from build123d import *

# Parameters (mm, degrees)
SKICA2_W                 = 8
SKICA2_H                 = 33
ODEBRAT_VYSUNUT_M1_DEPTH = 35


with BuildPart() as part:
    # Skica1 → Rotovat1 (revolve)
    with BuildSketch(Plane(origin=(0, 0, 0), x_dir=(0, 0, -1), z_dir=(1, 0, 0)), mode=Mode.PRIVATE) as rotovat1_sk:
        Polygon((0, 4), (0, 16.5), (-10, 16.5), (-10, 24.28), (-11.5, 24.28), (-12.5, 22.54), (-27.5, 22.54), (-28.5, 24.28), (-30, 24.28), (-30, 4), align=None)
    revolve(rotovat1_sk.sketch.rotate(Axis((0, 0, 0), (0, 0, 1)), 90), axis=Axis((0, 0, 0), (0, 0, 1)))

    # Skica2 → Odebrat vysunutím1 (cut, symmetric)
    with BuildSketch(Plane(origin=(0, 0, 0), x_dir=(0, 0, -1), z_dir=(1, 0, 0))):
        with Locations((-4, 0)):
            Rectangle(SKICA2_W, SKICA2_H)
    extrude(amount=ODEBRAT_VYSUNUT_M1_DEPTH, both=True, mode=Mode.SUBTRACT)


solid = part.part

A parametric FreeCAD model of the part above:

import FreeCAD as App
import Part
import Sketcher
Q = App.Units.Quantity


def add_polygon(sketch, points):
    """Adds a closed chain of lines whose ends are joined by coincident constraints."""
    first, n = sketch.GeometryCount, len(points)
    for a, b in zip(points, points[1:] + points[:1]):
        sketch.addGeometry(Part.LineSegment(App.Vector(*a, 0), App.Vector(*b, 0)), False)
    for i in range(n):
        sketch.addConstraint(Sketcher.Constraint("Coincident", first + i, 2, first + (i + 1) % n, 1))

doc = App.newDocument("Part")
params = doc.addObject("Spreadsheet::Sheet", "Params")
for row, (alias, value) in enumerate([
    ("sketch1_height", "10 mm"),
    ("sketch1_height2", "15 mm"),
    ("sketch1_height3", "30 mm"),
    ("sketch1_width", "12.5 mm"),
    ("sketch1_height4", "1.5 mm"),
    ("revolution_angle", "360 deg"),
    ("sketch2_width", "33 mm"),
    ("sketch2_height", "8 mm"),
    ("pocket1_length", "70 mm"),
], start=1):
    params.set(f"A{row}", alias)
    params.set(f"B{row}", "=" + value)
    params.setAlias(f"B{row}", alias)

body = doc.addObject("PartDesign::Body", "Body")

sketch1 = body.newObject("Sketcher::SketchObject", "Sketch")
sketch1.AttachmentSupport = (doc.getObject("YZ_Plane"), [""])
sketch1.MapMode = "FlatFace"
add_polygon(sketch1, [(4, 0), (16.5, 0), (16.5, 10), (24.3, 10), (24.3, 11.5), (22.5, 12.5), (22.5, 27.5), (24.3, 28.5), (24.3, 30), (4, 30)])
sketch1.addConstraint([
    Sketcher.Constraint("Horizontal", 0),
    Sketcher.Constraint("Vertical", 1),
    Sketcher.Constraint("Horizontal", 2),
    Sketcher.Constraint("Vertical", 3),
    Sketcher.Constraint("Vertical", 5),
    Sketcher.Constraint("Vertical", 7),
    Sketcher.Constraint("Horizontal", 8),
    Sketcher.Constraint("Vertical", 9),
    Sketcher.Constraint("PointOnObject", 0, 2, -1),
    Sketcher.Constraint("Vertical", 3, 2, 6, 2),
    Sketcher.Constraint("Equal", 3, 7),
    Sketcher.Constraint("Equal", 4, 6),
    Sketcher.Constraint("DistanceY", 1, 1, 1, 2, Q("10 mm")),
    Sketcher.Constraint("DistanceY", 5, 1, 5, 2, Q("15 mm")),
    Sketcher.Constraint("DistanceY", 9, 2, 9, 1, Q("30 mm")),
    Sketcher.Constraint("DistanceX", 0, 1, 0, 2, Q("12.5 mm")),
    Sketcher.Constraint("DistanceY", 3, 1, 3, 2, Q("1.5 mm")),
    Sketcher.Constraint("DistanceX", -1, 1, 8, 2, Q("4 mm")),
    Sketcher.Constraint("DistanceX", 2, 1, 2, 2, Q("7.78 mm")),
    Sketcher.Constraint("DistanceX", -1, 1, 4, 2, Q("22.54 mm")),
])
sketch1.setExpression("Constraints[22]", "Params.sketch1_height")
sketch1.setExpression("Constraints[23]", "Params.sketch1_height2")
sketch1.setExpression("Constraints[24]", "Params.sketch1_height3")
sketch1.setExpression("Constraints[25]", "Params.sketch1_width")
sketch1.setExpression("Constraints[26]", "Params.sketch1_height4")
revolution = body.newObject("PartDesign::Revolution", "Revolution")
revolution.Profile = sketch1
revolution.ReferenceAxis = (sketch1, ["V_Axis"])
revolution.setExpression("Angle", "Params.revolution_angle")

sketch2 = body.newObject("Sketcher::SketchObject", "Sketch001")
sketch2.AttachmentSupport = (doc.getObject("YZ_Plane"), [""])
sketch2.MapMode = "FlatFace"
add_polygon(sketch2, [(16, 8), (-16, 8), (-16, 0), (16, 0)])
sketch2.addConstraint([
    Sketcher.Constraint("Horizontal", 0),
    Sketcher.Constraint("Vertical", 1),
    Sketcher.Constraint("Horizontal", 2),
    Sketcher.Constraint("Vertical", 3),
    Sketcher.Constraint("Symmetric", 1, 2, 2, 2, -1, 1),
    Sketcher.Constraint("DistanceX", 0, 2, 0, 1, Q("33 mm")),
    Sketcher.Constraint("DistanceY", 1, 2, 1, 1, Q("8 mm")),
])
sketch2.setExpression("Constraints[9]", "Params.sketch2_width")
sketch2.setExpression("Constraints[10]", "Params.sketch2_height")
pocket1 = body.newObject("PartDesign::Pocket", "Pocket")
pocket1.Profile = sketch2
pocket1.setExpression("Length", "Params.pocket1_length")
pocket1.Midplane = True

doc.recompute()
